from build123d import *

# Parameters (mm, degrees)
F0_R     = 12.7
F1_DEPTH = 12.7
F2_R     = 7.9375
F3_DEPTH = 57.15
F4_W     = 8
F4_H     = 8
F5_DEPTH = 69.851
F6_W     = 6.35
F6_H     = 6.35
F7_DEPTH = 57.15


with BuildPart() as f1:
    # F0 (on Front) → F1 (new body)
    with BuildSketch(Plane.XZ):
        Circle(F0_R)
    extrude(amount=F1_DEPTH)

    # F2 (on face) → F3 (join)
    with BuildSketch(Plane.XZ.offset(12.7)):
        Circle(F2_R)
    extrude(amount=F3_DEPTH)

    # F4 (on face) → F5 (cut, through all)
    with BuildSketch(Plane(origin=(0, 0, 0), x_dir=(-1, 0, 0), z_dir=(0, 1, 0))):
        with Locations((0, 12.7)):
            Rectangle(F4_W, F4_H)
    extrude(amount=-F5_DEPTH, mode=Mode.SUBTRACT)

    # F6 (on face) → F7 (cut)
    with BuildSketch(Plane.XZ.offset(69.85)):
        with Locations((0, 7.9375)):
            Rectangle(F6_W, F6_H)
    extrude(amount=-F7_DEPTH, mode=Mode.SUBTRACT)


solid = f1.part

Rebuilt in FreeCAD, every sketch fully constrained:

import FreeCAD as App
import Part
import Sketcher
from FreeCAD import Vector
Q = App.Units.Quantity

doc = App.newDocument("Part")
body = doc.addObject("PartDesign::Body", "Body")

sketch1 = body.newObject("Sketcher::SketchObject", "Sketch")
sketch1.AttachmentSupport = (doc.getObject("XZ_Plane"), [""])
sketch1.MapMode = "FlatFace"
sketch1.addGeometry(Part.Circle(Vector(0, 0, 0), Vector(0, 0, 1), 13), False)
sketch1.addConstraint([
    Sketcher.Constraint("Coincident", 0, 3, -1, 1),
    Sketcher.Constraint("Diameter", 0, Q("1 in")),
])
pad1 = body.newObject("PartDesign::Pad", "Pad")
pad1.Profile = sketch1
pad1.Length = Q("0.5 in")

sketch2 = body.newObject("Sketcher::SketchObject", "Sketch001")
sketch2.AttachmentSupport = (doc.getObject("XZ_Plane"), [""])
sketch2.MapMode = "FlatFace"
sketch2.AttachmentOffset = App.Placement(Vector(0, 0, 0.5 * 25.4), App.Rotation())
sketch2.addGeometry(Part.Circle(Vector(0, 0, 0), Vector(0, 0, 1), 8), False)
sketch2.addConstraint([
    Sketcher.Constraint("Coincident", 0, 3, -1, 1),
    Sketcher.Constraint("Diameter", 0, Q("0.625 in")),
])
pad2 = body.newObject("PartDesign::Pad", "Pad001")
pad2.Profile = sketch2
pad2.Length = Q("2.25 in")

sketch3 = body.newObject("Sketcher::SketchObject", "Sketch002")
sketch3.AttachmentSupport = (doc.getObject("XZ_Plane"), [""])
sketch3.MapMode = "FlatFace"
sketch3.addGeometry([
    Part.LineSegment(Vector(4, 17, 0), Vector(4, 9, 0)),
    Part.LineSegment(Vector(4, 9, 0), Vector(-4, 9, 0)),
    Part.LineSegment(Vector(-4, 9, 0), Vector(-4, 17, 0)),
    Part.LineSegment(Vector(-4, 17, 0), Vector(4, 17, 0)),
], False)
sketch3.addConstraint([
    Sketcher.Constraint("Coincident", 0, 2, 1, 1),
    Sketcher.Constraint("Coincident", 1, 2, 2, 1),
    Sketcher.Constraint("Coincident", 2, 2, 3, 1),
    Sketcher.Constraint("Coincident", 3, 2, 0, 1),
    Sketcher.Constraint("Vertical", 0),
    Sketcher.Constraint("Horizontal", 1),
    Sketcher.Constraint("Vertical", 2),
    Sketcher.Constraint("Horizontal", 3),
    Sketcher.Constraint("Equal", 3, 0),
    Sketcher.Constraint("DistanceX", 1, 2, 1, 1, Q("8 mm")),
    Sketcher.Constraint("DistanceX", -1, 1, 0, 2, Q("4 mm")),
    Sketcher.Constraint("DistanceY", -1, 1, 0, 2, Q("8.7 mm")),
])
pocket1 = body.newObject("PartDesign::Pocket", "Pocket")
pocket1.Profile = sketch3
pocket1.Type = "ThroughAll"
pocket1.Reversed = True

sketch4 = body.newObject("Sketcher::SketchObject", "Sketch003")
sketch4.AttachmentSupport = (doc.getObject("XZ_Plane"), [""])
sketch4.MapMode = "FlatFace"
sketch4.AttachmentOffset = App.Placement(Vector(0, 0, 2.75 * 25.4), App.Rotation())
sketch4.addGeometry([
    Part.LineSegment(Vector(-3, 11, 0), Vector(-3, 5, 0)),
    Part.LineSegment(Vector(-3, 5, 0), Vector(3, 5, 0)),
    Part.LineSegment(Vector(3, 5, 0), Vector(3, 11, 0)),
    Part.LineSegment(Vector(3, 11, 0), Vector(-3, 11, 0)),
], False)
sketch4.addConstraint([
    Sketcher.Constraint("Coincident", 0, 2, 1, 1),
    Sketcher.Constraint("Coincident", 1, 2, 2, 1),
    Sketcher.Constraint("Coincident", 2, 2, 3, 1),
    Sketcher.Constraint("Coincident", 3, 2, 0, 1),
    Sketcher.Constraint("Vertical", 0),
    Sketcher.Constraint("Horizontal", 1),
    Sketcher.Constraint("Vertical", 2),
    Sketcher.Constraint("Horizontal", 3),
    Sketcher.Constraint("Equal", 3, 0),
    Sketcher.Constraint("DistanceX", 1, 1, 1, 2, Q("0.25 in")),
    Sketcher.Constraint("DistanceX", 0, 2, -1, 1, Q("0.125 in")),
    Sketcher.Constraint("DistanceY", -1, 1, 0, 2, Q("0.1875 in")),
])
pocket2 = body.newObject("PartDesign::Pocket", "Pocket001")
pocket2.Profile = sketch4
pocket2.Length = Q("2.25 in")

doc.recompute()
